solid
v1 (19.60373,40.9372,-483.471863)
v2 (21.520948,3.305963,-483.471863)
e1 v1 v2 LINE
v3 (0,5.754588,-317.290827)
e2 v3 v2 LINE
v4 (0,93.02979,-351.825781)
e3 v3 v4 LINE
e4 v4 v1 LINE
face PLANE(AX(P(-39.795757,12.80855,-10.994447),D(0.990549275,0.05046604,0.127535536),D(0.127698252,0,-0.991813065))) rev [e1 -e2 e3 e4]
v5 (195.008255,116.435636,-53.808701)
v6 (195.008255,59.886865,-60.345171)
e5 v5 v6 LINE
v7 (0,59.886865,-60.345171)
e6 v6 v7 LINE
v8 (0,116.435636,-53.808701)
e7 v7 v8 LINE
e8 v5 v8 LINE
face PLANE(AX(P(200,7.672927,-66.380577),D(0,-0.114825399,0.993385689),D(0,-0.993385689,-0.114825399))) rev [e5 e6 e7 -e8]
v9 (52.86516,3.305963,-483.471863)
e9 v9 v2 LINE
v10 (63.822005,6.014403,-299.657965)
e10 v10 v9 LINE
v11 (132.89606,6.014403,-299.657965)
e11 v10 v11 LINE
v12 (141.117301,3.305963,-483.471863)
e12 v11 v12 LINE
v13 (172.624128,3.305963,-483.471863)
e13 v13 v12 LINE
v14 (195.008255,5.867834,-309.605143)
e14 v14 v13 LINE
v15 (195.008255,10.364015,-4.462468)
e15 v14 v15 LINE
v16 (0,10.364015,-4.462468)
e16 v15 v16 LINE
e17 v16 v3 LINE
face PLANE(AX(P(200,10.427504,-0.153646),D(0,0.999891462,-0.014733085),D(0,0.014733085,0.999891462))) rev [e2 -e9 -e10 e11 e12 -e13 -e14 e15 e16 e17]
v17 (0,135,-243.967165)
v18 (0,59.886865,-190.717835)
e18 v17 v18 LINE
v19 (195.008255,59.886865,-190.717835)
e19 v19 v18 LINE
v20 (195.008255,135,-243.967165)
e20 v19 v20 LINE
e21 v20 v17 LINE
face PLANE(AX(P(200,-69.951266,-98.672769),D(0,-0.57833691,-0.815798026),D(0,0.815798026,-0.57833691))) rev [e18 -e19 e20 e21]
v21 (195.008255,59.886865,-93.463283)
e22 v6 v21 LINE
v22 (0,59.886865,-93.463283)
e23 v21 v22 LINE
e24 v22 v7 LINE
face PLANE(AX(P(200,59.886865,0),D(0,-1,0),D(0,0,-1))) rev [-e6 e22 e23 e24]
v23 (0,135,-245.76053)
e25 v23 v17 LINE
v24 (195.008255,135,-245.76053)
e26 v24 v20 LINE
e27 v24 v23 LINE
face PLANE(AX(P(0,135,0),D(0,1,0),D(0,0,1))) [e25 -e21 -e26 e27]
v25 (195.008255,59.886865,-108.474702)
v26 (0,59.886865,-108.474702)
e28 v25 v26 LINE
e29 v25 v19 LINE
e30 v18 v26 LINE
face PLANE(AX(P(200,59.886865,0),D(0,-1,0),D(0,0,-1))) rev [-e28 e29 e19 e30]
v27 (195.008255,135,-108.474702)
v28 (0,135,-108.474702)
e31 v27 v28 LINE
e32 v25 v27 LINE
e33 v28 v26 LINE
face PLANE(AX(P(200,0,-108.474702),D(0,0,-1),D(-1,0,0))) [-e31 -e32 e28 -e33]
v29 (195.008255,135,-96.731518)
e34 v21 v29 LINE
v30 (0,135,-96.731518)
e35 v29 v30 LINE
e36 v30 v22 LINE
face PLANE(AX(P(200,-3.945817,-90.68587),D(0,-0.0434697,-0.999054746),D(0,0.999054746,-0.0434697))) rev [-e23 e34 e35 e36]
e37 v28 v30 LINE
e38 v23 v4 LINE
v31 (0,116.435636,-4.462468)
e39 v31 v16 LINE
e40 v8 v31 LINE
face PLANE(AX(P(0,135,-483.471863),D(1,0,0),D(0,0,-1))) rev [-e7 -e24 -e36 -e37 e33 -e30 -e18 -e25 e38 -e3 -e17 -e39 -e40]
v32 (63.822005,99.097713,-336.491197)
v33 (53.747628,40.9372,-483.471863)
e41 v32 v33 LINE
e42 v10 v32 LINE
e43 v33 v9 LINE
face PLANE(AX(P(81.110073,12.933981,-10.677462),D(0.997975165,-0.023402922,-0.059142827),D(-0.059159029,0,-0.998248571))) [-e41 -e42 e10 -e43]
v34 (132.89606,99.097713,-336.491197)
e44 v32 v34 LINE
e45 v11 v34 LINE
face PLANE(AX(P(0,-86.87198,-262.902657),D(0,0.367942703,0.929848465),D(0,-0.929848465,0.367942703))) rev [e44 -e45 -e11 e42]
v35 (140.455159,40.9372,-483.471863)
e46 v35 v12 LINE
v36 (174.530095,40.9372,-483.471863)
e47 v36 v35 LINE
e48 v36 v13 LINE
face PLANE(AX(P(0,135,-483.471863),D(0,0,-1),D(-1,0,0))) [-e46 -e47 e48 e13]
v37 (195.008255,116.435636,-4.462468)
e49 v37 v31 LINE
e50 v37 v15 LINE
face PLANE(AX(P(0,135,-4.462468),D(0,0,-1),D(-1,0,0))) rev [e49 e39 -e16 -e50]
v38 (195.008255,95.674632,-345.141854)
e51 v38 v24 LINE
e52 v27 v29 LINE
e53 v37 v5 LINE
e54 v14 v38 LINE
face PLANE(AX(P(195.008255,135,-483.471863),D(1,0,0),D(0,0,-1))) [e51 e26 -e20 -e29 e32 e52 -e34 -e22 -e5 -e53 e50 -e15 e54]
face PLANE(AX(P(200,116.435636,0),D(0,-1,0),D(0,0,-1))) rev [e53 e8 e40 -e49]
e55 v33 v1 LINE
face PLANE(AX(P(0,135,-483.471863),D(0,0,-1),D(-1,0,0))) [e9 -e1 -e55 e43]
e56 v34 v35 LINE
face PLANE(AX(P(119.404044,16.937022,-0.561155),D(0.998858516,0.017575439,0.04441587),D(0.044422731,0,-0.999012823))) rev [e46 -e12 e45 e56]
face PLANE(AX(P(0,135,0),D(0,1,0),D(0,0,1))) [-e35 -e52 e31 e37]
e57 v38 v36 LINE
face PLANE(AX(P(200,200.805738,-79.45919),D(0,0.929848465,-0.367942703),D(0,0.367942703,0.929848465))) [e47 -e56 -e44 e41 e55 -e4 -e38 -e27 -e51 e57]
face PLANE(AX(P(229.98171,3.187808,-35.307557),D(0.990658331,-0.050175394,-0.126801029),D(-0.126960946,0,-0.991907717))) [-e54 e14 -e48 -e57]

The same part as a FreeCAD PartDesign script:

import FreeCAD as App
import Part
import Sketcher

doc = App.newDocument("Part")
body = doc.addObject("PartDesign::Body", "Body")

sketch1 = body.newObject("Sketcher::SketchObject", "Sketch")
sketch1.AttachmentSupport = (doc.getObject("XZ_Plane"), [""])
sketch1.MapMode = "FlatFace"
sketch1.addGeometry([
    Part.LineSegment(App.Vector(0, -483, 0), App.Vector(0, -4, 0)),
    Part.LineSegment(App.Vector(0, -4, 0), App.Vector(195, -4, 0)),
    Part.LineSegment(App.Vector(195, -4, 0), App.Vector(195, -483, 0)),
    Part.LineSegment(App.Vector(195, -483, 0), App.Vector(0, -483, 0)),
], False)
sketch1.addConstraint([
    Sketcher.Constraint("Coincident", 0, 2, 1, 1),
    Sketcher.Constraint("Coincident", 1, 2, 2, 1),
    Sketcher.Constraint("Coincident", 2, 2, 3, 1),
    Sketcher.Constraint("Coincident", 3, 2, 0, 1),
    Sketcher.Constraint("Vertical", 0),
    Sketcher.Constraint("Horizontal", 1),
    Sketcher.Constraint("Vertical", 2),
    Sketcher.Constraint("Horizontal", 3),
    Sketcher.Constraint("PointOnObject", 0, 2, -2),
    Sketcher.Constraint("DistanceX", 1, 1, 1, 2, 195.008255),
    Sketcher.Constraint("DistanceY", 0, 1, 0, 2, 479.009395),
    Sketcher.Constraint("DistanceY", 0, 2, -1, 1, 4.462468),
])
pad1 = body.newObject("PartDesign::Pad", "Pad")
pad1.Profile = sketch1
pad1.Length = 135
pad1.Reversed = True

sketch2 = body.newObject("Sketcher::SketchObject", "Sketch001")
sketch2.AttachmentSupport = (doc.getObject("YZ_Plane"), [""])
sketch2.MapMode = "FlatFace"
sketch2.addGeometry([
    Part.LineSegment(App.Vector(40.9, -483.5, 0), App.Vector(135, -245.8, 0)),
    Part.LineSegment(App.Vector(135, -245.8, 0), App.Vector(135, -483.5, 0)),
    Part.LineSegment(App.Vector(135, -483.5, 0), App.Vector(40.9, -483.5, 0)),
    Part.LineSegment(App.Vector(135, -108.5, 0), App.Vector(135, -244, 0)),
    Part.LineSegment(App.Vector(135, -244, 0), App.Vector(59.9, -190.7, 0)),
    Part.LineSegment(App.Vector(59.9, -190.7, 0), App.Vector(59.9, -108.5, 0)),
    Part.LineSegment(App.Vector(59.9, -108.5, 0), App.Vector(135, -108.5, 0)),
    Part.LineSegment(App.Vector(135, -4.5, 0), App.Vector(135, -96.7, 0)),
    Part.LineSegment(App.Vector(135, -96.7, 0), App.Vector(59.9, -93.5, 0)),
    Part.LineSegment(App.Vector(59.9, -93.5, 0), App.Vector(59.9, -60.3, 0)),
    Part.LineSegment(App.Vector(59.9, -60.3, 0), App.Vector(116.4, -53.8, 0)),
    Part.LineSegment(App.Vector(116.4, -53.8, 0), App.Vector(116.4, -4.5, 0)),
    Part.LineSegment(App.Vector(116.4, -4.5, 0), App.Vector(135, -4.5, 0)),
    Part.LineSegment(App.Vector(10.4, -4.5, 0), App.Vector(3.3, -483.5, 0)),
    Part.LineSegment(App.Vector(3.3, -483.5, 0), App.Vector(0, -483.5, 0)),
    Part.LineSegment(App.Vector(0, -483.5, 0), App.Vector(0, -4.5, 0)),
    Part.LineSegment(App.Vector(0, -4.5, 0), App.Vector(10.4, -4.5, 0)),
], False)
sketch2.addConstraint([
    Sketcher.Constraint("Coincident", 0, 2, 1, 1),
    Sketcher.Constraint("Coincident", 1, 2, 2, 1),
    Sketcher.Constraint("Coincident", 2, 2, 0, 1),
    Sketcher.Constraint("Coincident", 3, 2, 4, 1),
    Sketcher.Constraint("Coincident", 4, 2, 5, 1),
    Sketcher.Constraint("Coincident", 5, 2, 6, 1),
    Sketcher.Constraint("Coincident", 6, 2, 3, 1),
    Sketcher.Constraint("Coincident", 7, 2, 8, 1),
    Sketcher.Constraint("Coincident", 8, 2, 9, 1),
    Sketcher.Constraint("Coincident", 9, 2, 10, 1),
    Sketcher.Constraint("Coincident", 10, 2, 11, 1),
    Sketcher.Constraint("Coincident", 11, 2, 12, 1),
    Sketcher.Constraint("Coincident", 12, 2, 7, 1),
    Sketcher.Constraint("Coincident", 13, 2, 14, 1),
    Sketcher.Constraint("Coincident", 14, 2, 15, 1),
    Sketcher.Constraint("Coincident", 15, 2, 16, 1),
    Sketcher.Constraint("Coincident", 16, 2, 13, 1),
    Sketcher.Constraint("Vertical", 1),
    Sketcher.Constraint("Horizontal", 2),
    Sketcher.Constraint("Vertical", 3),
    Sketcher.Constraint("Vertical", 5),
    Sketcher.Constraint("Horizontal", 6),
    Sketcher.Constraint("Vertical", 7),
    Sketcher.Constraint("Vertical", 9),
    Sketcher.Constraint("Vertical", 11),
    Sketcher.Constraint("Horizontal", 12),
    Sketcher.Constraint("Horizontal", 14),
    Sketcher.Constraint("Vertical", 15),
    Sketcher.Constraint("Horizontal", 16),
    Sketcher.Constraint("PointOnObject", 14, 2, -2),
    Sketcher.Constraint("Horizontal", 2, 2, 13, 2),
    Sketcher.Constraint("Horizontal", 12, 2, 15, 2),
    Sketcher.Constraint("Vertical", 1, 2, 3, 2),
    Sketcher.Constraint("Vertical", 6, 2, 7, 2),
    Sketcher.Constraint("Vertical", 5, 2, 8, 2),
    Sketcher.Constraint("DistanceX", -1, 1, 0, 2, 135.0),
    Sketcher.Constraint("DistanceX", 2, 2, 2, 1, 94.0628),
    Sketcher.Constraint("DistanceY", 6, 2, 10, 2, 54.666001),
    Sketcher.Constraint("Distance", 4, 92.073201),
    Sketcher.Constraint("DistanceY", 7, 2, 7, 1, 92.26905),
    Sketcher.Constraint("DistanceY", 5, 2, -1, 1, 108.474702),
    Sketcher.Constraint("DistanceX", 13, 2, 4, 2, 56.580902),
    Sketcher.Constraint("Distance", 0, 255.645238),
    Sketcher.Constraint("Distance", 13, 479.061391),
    Sketcher.Constraint("DistanceX", 6, 1, 6, 2, 75.113135),
    Sketcher.Constraint("DistanceX", 12, 1, 12, 2, 18.564364),
    Sketcher.Constraint("DistanceX", 16, 1, 16, 2, 10.364015),
    Sketcher.Constraint("DistanceY", 3, 2, 3, 1, 135.492463),
    Sketcher.Constraint("DistanceY", 9, 1, 9, 2, 33.118112),
    Sketcher.Constraint("DistanceY", 11, 1, 11, 2, 49.346233),
    Sketcher.Constraint("DistanceY", 9, 2, -1, 1, 60.345171),
])
pocket1 = body.newObject("PartDesign::Pocket", "Pocket")
pocket1.Profile = sketch2
pocket1.Length = 200
pocket1.Reversed = True

sketch3 = body.newObject("Sketcher::SketchObject", "Sketch002")
sketch3.Placement = App.Placement(App.Vector(0, 200.805738, -79.45919), App.Rotation(App.Vector(1, 0, 0), App.Vector(0, -0.367942703, -0.929848465), App.Vector(0, 0.929848465, -0.367942703), "ZXY"))
sketch3.addGeometry([
    Part.LineSegment(App.Vector(140.46, 434.49, 0), App.Vector(143.17, 491.27, 0)),
    Part.LineSegment(App.Vector(143.17, 491.27, 0), App.Vector(50.13, 491.27, 0)),
    Part.LineSegment(App.Vector(50.13, 491.27, 0), App.Vector(53.75, 434.49, 0)),
    Part.LineSegment(App.Vector(53.75, 434.49, 0), App.Vector(63.82, 276.42, 0)),
    Part.LineSegment(App.Vector(63.82, 276.42, 0), App.Vector(132.9, 276.42, 0)),
    Part.LineSegment(App.Vector(132.9, 276.42, 0), App.Vector(140.46, 434.49, 0)),
    Part.LineSegment(App.Vector(19.6, 434.49, 0), App.Vector(27.47, 491.27, 0)),
    Part.LineSegment(App.Vector(27.47, 491.27, 0), App.Vector(0, 491.27, 0)),
    Part.LineSegment(App.Vector(0, 491.27, 0), App.Vector(0, 292.92, 0)),
    Part.LineSegment(App.Vector(0, 292.92, 0), App.Vector(19.6, 434.49, 0)),
    Part.LineSegment(App.Vector(174.53, 434.49, 0), App.Vector(195.01, 285.73, 0)),
    Part.LineSegment(App.Vector(195.01, 285.73, 0), App.Vector(195.01, 491.27, 0)),
    Part.LineSegment(App.Vector(195.01, 491.27, 0), App.Vector(166.71, 491.27, 0)),
    Part.LineSegment(App.Vector(166.71, 491.27, 0), App.Vector(174.48, 434.88, 0)),
    Part.LineSegment(App.Vector(174.48, 434.88, 0), App.Vector(174.53, 434.49, 0)),
], False)
sketch3.addConstraint([
    Sketcher.Constraint("Coincident", 0, 2, 1, 1),
    Sketcher.Constraint("Coincident", 1, 2, 2, 1),
    Sketcher.Constraint("Coincident", 2, 2, 3, 1),
    Sketcher.Constraint("Coincident", 3, 2, 4, 1),
    Sketcher.Constraint("Coincident", 4, 2, 5, 1),
    Sketcher.Constraint("Coincident", 5, 2, 0, 1),
    Sketcher.Constraint("Coincident", 6, 2, 7, 1),
    Sketcher.Constraint("Coincident", 7, 2, 8, 1),
    Sketcher.Constraint("Coincident", 8, 2, 9, 1),
    Sketcher.Constraint("Coincident", 9, 2, 6, 1),
    Sketcher.Constraint("Coincident", 10, 2, 11, 1),
    Sketcher.Constraint("Coincident", 11, 2, 12, 1),
    Sketcher.Constraint("Coincident", 12, 2, 13, 1),
    Sketcher.Constraint("Coincident", 13, 2, 14, 1),
    Sketcher.Constraint("Coincident", 14, 2, 10, 1),
    Sketcher.Constraint("Horizontal", 1),
    Sketcher.Constraint("Horizontal", 4),
    Sketcher.Constraint("Horizontal", 7),
    Sketcher.Constraint("Vertical", 8),
    Sketcher.Constraint("Vertical", 11),
    Sketcher.Constraint("Horizontal", 12),
    Sketcher.Constraint("PointOnObject", 7, 2, -2),
    Sketcher.Constraint("Parallel", 2, 3),
    Sketcher.Constraint("Parallel", 0, 5),
    Sketcher.Constraint("Parallel", 6, 9),
    Sketcher.Constraint("Parallel", 10, 13),
    Sketcher.Constraint("Parallel", 13, 14),
    Sketcher.Constraint("Horizontal", 2, 2, 5, 2),
    Sketcher.Constraint("Horizontal", 1, 2, 6, 2),
    Sketcher.Constraint("Horizontal", 5, 2, 9, 2),
    Sketcher.Constraint("Horizontal", 7, 2, 11, 2),
    Sketcher.Constraint("Horizontal", 9, 2, 14, 2),
    Sketcher.Constraint("DistanceX", 1, 2, 1, 1, 93.041059),
    Sketcher.Constraint("DistanceX", 7, 2, 7, 1, 27.465109),
    Sketcher.Constraint("DistanceY", 8, 2, 8, 1, 198.35282),
    Sketcher.Constraint("DistanceY", 11, 1, 11, 2, 205.54101),
    Sketcher.Constraint("DistanceX", 4, 2, 5, 2, 7.559099),
    Sketcher.Constraint("DistanceX", 6, 2, 0, 2, 115.7051),
    Sketcher.Constraint("DistanceX", 9, 2, 2, 2, 34.143898),
    Sketcher.Constraint("DistanceX", 1, 2, 12, 2, 116.585702),
    Sketcher.Constraint("DistanceX", 0, 2, 13, 2, 31.307198),
    Sketcher.Constraint("DistanceX", 4, 1, 4, 2, 69.074055),
    Sketcher.Constraint("DistanceX", 12, 2, 12, 1, 28.293403),
    Sketcher.Constraint("DistanceY", -1, 1, 0, 2, 491.26785),
    Sketcher.Constraint("DistanceX", -1, 1, 2, 2, 53.747628),
])
pocket2 = body.newObject("PartDesign::Pocket", "Pocket001")
pocket2.Profile = sketch3
pocket2.Length = 200

doc.recompute()
